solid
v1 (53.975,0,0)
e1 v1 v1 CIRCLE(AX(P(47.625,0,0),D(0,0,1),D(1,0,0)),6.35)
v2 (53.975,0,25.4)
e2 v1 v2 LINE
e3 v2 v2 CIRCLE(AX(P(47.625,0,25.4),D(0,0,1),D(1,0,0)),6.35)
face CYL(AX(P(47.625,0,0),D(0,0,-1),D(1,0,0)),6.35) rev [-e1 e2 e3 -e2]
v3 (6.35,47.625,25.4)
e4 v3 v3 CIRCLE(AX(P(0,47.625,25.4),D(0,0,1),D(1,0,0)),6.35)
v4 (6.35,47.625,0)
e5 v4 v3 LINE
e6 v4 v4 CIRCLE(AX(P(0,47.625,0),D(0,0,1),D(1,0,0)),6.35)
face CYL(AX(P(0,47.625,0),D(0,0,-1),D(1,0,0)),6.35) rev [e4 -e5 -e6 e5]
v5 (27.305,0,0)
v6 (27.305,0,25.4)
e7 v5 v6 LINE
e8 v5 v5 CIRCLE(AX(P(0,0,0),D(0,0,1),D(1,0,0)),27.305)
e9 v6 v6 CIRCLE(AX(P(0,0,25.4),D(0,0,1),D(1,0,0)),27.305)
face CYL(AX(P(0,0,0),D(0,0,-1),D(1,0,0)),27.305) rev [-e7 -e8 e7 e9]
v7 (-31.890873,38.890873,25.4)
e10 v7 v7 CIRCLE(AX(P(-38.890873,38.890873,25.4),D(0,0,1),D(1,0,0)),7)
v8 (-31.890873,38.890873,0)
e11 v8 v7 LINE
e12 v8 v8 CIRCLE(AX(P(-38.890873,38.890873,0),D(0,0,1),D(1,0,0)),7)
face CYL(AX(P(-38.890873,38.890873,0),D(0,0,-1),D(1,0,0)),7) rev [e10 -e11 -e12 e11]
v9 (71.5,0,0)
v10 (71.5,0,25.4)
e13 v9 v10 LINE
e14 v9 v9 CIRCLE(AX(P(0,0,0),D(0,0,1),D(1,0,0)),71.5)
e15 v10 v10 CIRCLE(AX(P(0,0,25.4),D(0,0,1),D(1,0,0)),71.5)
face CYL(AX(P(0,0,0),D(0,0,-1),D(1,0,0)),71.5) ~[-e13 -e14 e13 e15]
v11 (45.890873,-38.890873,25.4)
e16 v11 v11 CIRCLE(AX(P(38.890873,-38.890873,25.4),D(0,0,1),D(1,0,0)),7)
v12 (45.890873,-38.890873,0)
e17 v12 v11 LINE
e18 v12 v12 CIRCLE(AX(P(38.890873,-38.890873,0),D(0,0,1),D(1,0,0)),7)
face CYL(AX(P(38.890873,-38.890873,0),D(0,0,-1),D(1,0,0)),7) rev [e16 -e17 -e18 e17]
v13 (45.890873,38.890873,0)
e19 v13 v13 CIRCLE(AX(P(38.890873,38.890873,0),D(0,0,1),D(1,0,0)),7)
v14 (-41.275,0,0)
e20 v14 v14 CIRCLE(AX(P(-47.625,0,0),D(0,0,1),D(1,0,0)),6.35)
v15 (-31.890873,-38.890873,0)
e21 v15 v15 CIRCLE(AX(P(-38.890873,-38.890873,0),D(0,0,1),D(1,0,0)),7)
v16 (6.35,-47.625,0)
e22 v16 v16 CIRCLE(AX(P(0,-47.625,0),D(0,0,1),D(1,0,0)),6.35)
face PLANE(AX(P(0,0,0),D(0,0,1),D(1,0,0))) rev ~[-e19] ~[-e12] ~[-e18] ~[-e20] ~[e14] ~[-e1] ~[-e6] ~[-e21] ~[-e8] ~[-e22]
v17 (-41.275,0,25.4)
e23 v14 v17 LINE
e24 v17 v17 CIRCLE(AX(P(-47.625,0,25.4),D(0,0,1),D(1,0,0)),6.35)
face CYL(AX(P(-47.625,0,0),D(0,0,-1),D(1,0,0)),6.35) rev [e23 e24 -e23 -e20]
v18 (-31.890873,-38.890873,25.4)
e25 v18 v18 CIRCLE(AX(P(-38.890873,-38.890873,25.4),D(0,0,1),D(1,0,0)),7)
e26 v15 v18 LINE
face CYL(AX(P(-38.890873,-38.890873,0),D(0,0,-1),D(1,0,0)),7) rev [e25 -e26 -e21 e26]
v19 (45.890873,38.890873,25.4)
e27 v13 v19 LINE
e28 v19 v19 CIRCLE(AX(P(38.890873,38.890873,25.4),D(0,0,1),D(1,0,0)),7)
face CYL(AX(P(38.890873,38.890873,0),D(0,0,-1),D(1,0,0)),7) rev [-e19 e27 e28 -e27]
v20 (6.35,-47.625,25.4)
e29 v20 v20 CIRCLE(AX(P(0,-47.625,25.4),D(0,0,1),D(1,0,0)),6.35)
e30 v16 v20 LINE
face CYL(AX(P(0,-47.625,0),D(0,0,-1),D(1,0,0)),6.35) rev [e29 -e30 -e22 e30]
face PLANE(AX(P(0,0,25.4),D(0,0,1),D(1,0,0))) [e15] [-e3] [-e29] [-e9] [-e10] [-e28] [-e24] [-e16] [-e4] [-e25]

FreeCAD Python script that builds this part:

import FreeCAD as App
import Part
import Sketcher
Q = App.Units.Quantity

doc = App.newDocument("Part")
body = doc.addObject("PartDesign::Body", "Body")

# Sketch on XY plane
sketch1 = doc.addObject("Sketcher::SketchObject", "Sketch")
body.addObject(sketch1)
sketch1.AttachmentSupport = (doc.XY_Plane, [""])
sketch1.MapMode = "FlatFace"
sketch1.addGeometry([
    Part.Circle(App.Vector(0, 0, 0), App.Vector(0, 0, 1), 72),  # 0
    Part.Circle(App.Vector(-39, -39, 0), App.Vector(0, 0, 1), 7),  # 1
    Part.Circle(App.Vector(0, -48, 0), App.Vector(0, 0, 1), 6),  # 2
    Part.Circle(App.Vector(39, -39, 0), App.Vector(0, 0, 1), 7),  # 3
    Part.Circle(App.Vector(-48, 0, 0), App.Vector(0, 0, 1), 6),  # 4
    Part.Circle(App.Vector(-39, 39, 0), App.Vector(0, 0, 1), 7),  # 5
    Part.Circle(App.Vector(0, 0, 0), App.Vector(0, 0, 1), 27),  # 6
    Part.Circle(App.Vector(48, 0, 0), App.Vector(0, 0, 1), 6),  # 7
    Part.Circle(App.Vector(0, 48, 0), App.Vector(0, 0, 1), 6),  # 8
    Part.Circle(App.Vector(39, 39, 0), App.Vector(0, 0, 1), 7),  # 9
], False)
sketch1.addConstraint([
    Sketcher.Constraint("Coincident", 0, 3, -1, 1),
    Sketcher.Constraint("Coincident", 6, 3, -1, 1),
    Sketcher.Constraint("Equal", 1, 3),
    Sketcher.Constraint("Equal", 2, 4),
    Sketcher.Constraint("Equal", 3, 5),
    Sketcher.Constraint("Equal", 4, 7),
    Sketcher.Constraint("Equal", 7, 8),
    Sketcher.Constraint("Equal", 5, 9),
    Sketcher.Constraint("Symmetric", 3, 3, 5, 3, -1, 1),
    Sketcher.Constraint("Symmetric", 4, 3, 7, 3, -1, 1),
    Sketcher.Constraint("Symmetric", 2, 3, 8, 3, -1, 1),
    Sketcher.Constraint("Symmetric", 1, 3, 9, 3, -1, 1),
    Sketcher.Constraint("Symmetric", 1, 3, 3, 3, -2),
    Sketcher.Constraint("PointOnObject", 2, 3, -2),
    Sketcher.Constraint("PointOnObject", 4, 3, -1),
    Sketcher.Constraint("Diameter", 2, Q("0.5 in")),
    Sketcher.Constraint("Diameter", 6, Q("2.15 in")),
    Sketcher.Constraint("Diameter", 0, Q("143 mm")),
    Sketcher.Constraint("Diameter", 1, Q("14 mm")),
    Sketcher.Constraint("DistanceY", 2, 3, -1, 1, Q("1.875 in")),
    Sketcher.Constraint("DistanceX", 4, 3, -1, 1, Q("1.875 in")),
    Sketcher.Constraint("DistanceX", 1, 3, -1, 1, Q("38.890873 mm")),
    Sketcher.Constraint("DistanceY", 1, 3, -1, 1, Q("38.890873 mm")),
])
pad1 = doc.addObject("PartDesign::Pad", "Pad")
body.addObject(pad1)
pad1.Profile = sketch1
pad1.Length = Q("1 in")

doc.recompute()
